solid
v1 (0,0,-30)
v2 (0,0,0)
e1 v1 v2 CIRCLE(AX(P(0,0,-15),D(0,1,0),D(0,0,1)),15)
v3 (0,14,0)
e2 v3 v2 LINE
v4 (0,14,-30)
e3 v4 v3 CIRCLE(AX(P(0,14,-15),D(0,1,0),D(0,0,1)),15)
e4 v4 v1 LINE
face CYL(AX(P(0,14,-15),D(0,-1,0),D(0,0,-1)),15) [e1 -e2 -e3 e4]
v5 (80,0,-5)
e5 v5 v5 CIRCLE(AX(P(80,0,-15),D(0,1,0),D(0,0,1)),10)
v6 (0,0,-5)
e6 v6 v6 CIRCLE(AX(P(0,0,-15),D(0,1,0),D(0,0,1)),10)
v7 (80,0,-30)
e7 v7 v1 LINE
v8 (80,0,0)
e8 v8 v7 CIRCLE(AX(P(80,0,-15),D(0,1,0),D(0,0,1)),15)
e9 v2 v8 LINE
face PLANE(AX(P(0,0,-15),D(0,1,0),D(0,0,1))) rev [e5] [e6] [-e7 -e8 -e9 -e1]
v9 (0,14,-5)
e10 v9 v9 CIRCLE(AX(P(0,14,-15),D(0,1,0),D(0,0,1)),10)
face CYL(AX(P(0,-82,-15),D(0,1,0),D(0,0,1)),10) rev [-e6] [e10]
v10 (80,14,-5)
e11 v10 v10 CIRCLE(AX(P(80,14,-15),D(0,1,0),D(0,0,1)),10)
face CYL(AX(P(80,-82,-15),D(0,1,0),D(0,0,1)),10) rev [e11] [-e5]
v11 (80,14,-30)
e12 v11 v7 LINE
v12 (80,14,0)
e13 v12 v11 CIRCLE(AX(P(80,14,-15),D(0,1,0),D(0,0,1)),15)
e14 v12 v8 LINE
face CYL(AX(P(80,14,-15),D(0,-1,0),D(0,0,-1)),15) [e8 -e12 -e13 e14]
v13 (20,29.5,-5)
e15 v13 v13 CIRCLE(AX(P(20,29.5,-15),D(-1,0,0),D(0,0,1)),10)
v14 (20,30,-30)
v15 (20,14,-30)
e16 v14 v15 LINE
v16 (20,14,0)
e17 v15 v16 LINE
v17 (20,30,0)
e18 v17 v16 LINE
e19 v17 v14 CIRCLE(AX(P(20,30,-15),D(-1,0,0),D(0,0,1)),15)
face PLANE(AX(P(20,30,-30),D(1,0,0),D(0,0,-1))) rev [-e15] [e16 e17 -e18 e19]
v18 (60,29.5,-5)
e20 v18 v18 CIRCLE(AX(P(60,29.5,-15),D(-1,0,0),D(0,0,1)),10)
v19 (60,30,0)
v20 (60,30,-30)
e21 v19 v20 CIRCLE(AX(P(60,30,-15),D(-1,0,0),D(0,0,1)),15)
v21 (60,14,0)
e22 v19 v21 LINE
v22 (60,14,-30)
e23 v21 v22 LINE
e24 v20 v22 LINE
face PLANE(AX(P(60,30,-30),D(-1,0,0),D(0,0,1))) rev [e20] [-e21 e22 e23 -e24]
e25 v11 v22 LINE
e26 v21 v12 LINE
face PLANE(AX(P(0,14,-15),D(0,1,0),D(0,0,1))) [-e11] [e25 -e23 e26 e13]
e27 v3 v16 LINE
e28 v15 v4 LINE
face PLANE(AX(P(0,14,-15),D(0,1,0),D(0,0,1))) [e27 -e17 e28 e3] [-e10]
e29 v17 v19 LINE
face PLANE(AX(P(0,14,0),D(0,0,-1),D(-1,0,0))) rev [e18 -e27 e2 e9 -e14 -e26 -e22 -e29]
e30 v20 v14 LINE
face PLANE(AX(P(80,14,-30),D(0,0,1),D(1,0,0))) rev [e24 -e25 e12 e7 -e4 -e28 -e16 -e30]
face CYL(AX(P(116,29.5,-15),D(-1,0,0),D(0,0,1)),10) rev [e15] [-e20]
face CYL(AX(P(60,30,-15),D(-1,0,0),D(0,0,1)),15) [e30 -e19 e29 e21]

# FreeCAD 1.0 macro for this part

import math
import FreeCAD as App
import Part
import Sketcher
Q = App.Units.Quantity

doc = App.newDocument("Part")
params = doc.addObject("Spreadsheet::Sheet", "Params")
for row, (alias, value) in enumerate([
    ("sketch1_radius", "15 mm"),
    ("sketch1_width", "80 mm"),
    ("pad1_length", "14 mm"),
    ("sketch2_width", "40 mm"),
    ("sketch2_height", "30 mm"),
    ("pad2_length", "16 mm"),
    ("sketch3_diameter", "30 mm"),
    ("pad3_length", "40 mm"),
    ("sketch4_diameter", "20 mm"),
    ("pocket1_length", "96 mm"),
    ("sketch5_diameter", "20 mm"),
    ("pocket2_length", "96 mm"),
    ("sketch6_diameter", "20 mm"),
    ("pocket3_length", "96 mm"),
], start=1):
    params.set(f"A{row}", alias)
    params.set(f"B{row}", "=" + value)
    params.setAlias(f"B{row}", alias)

body = doc.addObject("PartDesign::Body", "Body")

sketch1 = body.newObject("Sketcher::SketchObject", "Sketch")
sketch1.AttachmentSupport = (doc.getObject("XZ_Plane"), [""])
sketch1.MapMode = "FlatFace"
sketch1.addGeometry([
    Part.LineSegment(App.Vector(0, 0, 0), App.Vector(80, 0, 0)),
    Part.ArcOfCircle(Part.Circle(App.Vector(80, -15, 0), App.Vector(0, 0, 1), 15), math.radians(-90), math.radians(90)),
    Part.LineSegment(App.Vector(80, -30, 0), App.Vector(0, -30, 0)),
    Part.ArcOfCircle(Part.Circle(App.Vector(0, -15, 0), App.Vector(0, 0, 1), 15), math.radians(90), math.radians(270)),
], False)
sketch1.addConstraint([
    Sketcher.Constraint("Tangent", 0, 2, 1, 2),
    Sketcher.Constraint("Tangent", 1, 1, 2, 1),
    Sketcher.Constraint("Tangent", 2, 2, 3, 2),
    Sketcher.Constraint("Tangent", 3, 1, 0, 1),
    Sketcher.Constraint("Horizontal", 0),
    Sketcher.Constraint("Horizontal", 2),
    Sketcher.Constraint("Coincident", 3, 1, -1, 1),
    Sketcher.Constraint("Radius", 1, Q("15 mm")),
    Sketcher.Constraint("DistanceX", 0, 1, 0, 2, Q("80 mm")),
])
sketch1.setExpression("Constraints[7]", "Params.sketch1_radius")
sketch1.setExpression("Constraints[8]", "Params.sketch1_width")
pad1 = body.newObject("PartDesign::Pad", "Pad")
pad1.Profile = sketch1
pad1.setExpression("Length", "Params.pad1_length")
pad1.Reversed = True

sketch2 = body.newObject("Sketcher::SketchObject", "Sketch001")
sketch2.AttachmentSupport = (doc.getObject("XZ_Plane"), [""])
sketch2.MapMode = "FlatFace"
sketch2.AttachmentOffset = App.Placement(App.Vector(0, 0, -14), App.Rotation())
sketch2.addGeometry([
    Part.LineSegment(App.Vector(20, -30, 0), App.Vector(20, 0, 0)),
    Part.LineSegment(App.Vector(20, 0, 0), App.Vector(60, 0, 0)),
    Part.LineSegment(App.Vector(60, 0, 0), App.Vector(60, -30, 0)),
    Part.LineSegment(App.Vector(60, -30, 0), App.Vector(20, -30, 0)),
], False)
sketch2.addConstraint([
    Sketcher.Constraint("Coincident", 0, 2, 1, 1),
    Sketcher.Constraint("Coincident", 1, 2, 2, 1),
    Sketcher.Constraint("Coincident", 2, 2, 3, 1),
    Sketcher.Constraint("Coincident", 3, 2, 0, 1),
    Sketcher.Constraint("Vertical", 0),
    Sketcher.Constraint("Horizontal", 1),
    Sketcher.Constraint("Vertical", 2),
    Sketcher.Constraint("Horizontal", 3),
    Sketcher.Constraint("PointOnObject", 0, 2, -1),
    Sketcher.Constraint("DistanceX", 1, 1, 1, 2, Q("40 mm")),
    Sketcher.Constraint("DistanceY", 0, 1, 0, 2, Q("30 mm")),
    Sketcher.Constraint("DistanceX", -1, 1, 0, 2, Q("20 mm")),
])
sketch2.setExpression("Constraints[9]", "Params.sketch2_width")
sketch2.setExpression("Constraints[10]", "Params.sketch2_height")
pad2 = body.newObject("PartDesign::Pad", "Pad001")
pad2.Profile = sketch2
pad2.setExpression("Length", "Params.pad2_length")
pad2.Reversed = True

sketch3 = body.newObject("Sketcher::SketchObject", "Sketch002")
sketch3.AttachmentSupport = (doc.getObject("YZ_Plane"), [""])
sketch3.MapMode = "FlatFace"
sketch3.AttachmentOffset = App.Placement(App.Vector(0, 0, 20), App.Rotation())
sketch3.addGeometry(Part.Circle(App.Vector(30, -15, 0), App.Vector(0, 0, 1), 15), False)
sketch3.addConstraint([
    Sketcher.Constraint("Diameter", 0, Q("30 mm")),
    Sketcher.Constraint("DistanceX", -1, 1, 0, 3, Q("30 mm")),
    Sketcher.Constraint("DistanceY", 0, 3, -1, 1, Q("15 mm")),
])
sketch3.setExpression("Constraints[0]", "Params.sketch3_diameter")
pad3 = body.newObject("PartDesign::Pad", "Pad002")
pad3.Profile = sketch3
pad3.setExpression("Length", "Params.pad3_length")

sketch4 = body.newObject("Sketcher::SketchObject", "Sketch003")
sketch4.AttachmentSupport = (doc.getObject("YZ_Plane"), [""])
sketch4.MapMode = "FlatFace"
sketch4.AttachmentOffset = App.Placement(App.Vector(0, 0, 20), App.Rotation())
sketch4.addGeometry(Part.Circle(App.Vector(29.5, -15, 0), App.Vector(0, 0, 1), 10), False)
sketch4.addConstraint([
    Sketcher.Constraint("Diameter", 0, Q("20 mm")),
    Sketcher.Constraint("DistanceY", 0, 3, -1, 1, Q("15 mm")),
    Sketcher.Constraint("DistanceX", -1, 1, 0, 3, Q("29.5 mm")),
])
sketch4.setExpression("Constraints[0]", "Params.sketch4_diameter")
pocket1 = body.newObject("PartDesign::Pocket", "Pocket")
pocket1.Profile = sketch4
pocket1.setExpression("Length", "Params.pocket1_length")
pocket1.Reversed = True

sketch5 = body.newObject("Sketcher::SketchObject", "Sketch004")
sketch5.AttachmentSupport = (doc.getObject("XZ_Plane"), [""])
sketch5.MapMode = "FlatFace"
sketch5.AttachmentOffset = App.Placement(App.Vector(0, 0, -14), App.Rotation())
sketch5.addGeometry(Part.Circle(App.Vector(0, -15, 0), App.Vector(0, 0, 1), 10), False)
sketch5.addConstraint([
    Sketcher.Constraint("PointOnObject", 0, 3, -2),
    Sketcher.Constraint("Diameter", 0, Q("20 mm")),
    Sketcher.Constraint("DistanceY", 0, 3, -1, 1, Q("15 mm")),
])
sketch5.setExpression("Constraints[1]", "Params.sketch5_diameter")
pocket2 = body.newObject("PartDesign::Pocket", "Pocket001")
pocket2.Profile = sketch5
pocket2.setExpression("Length", "Params.pocket2_length")
pocket2.Reversed = True

sketch6 = body.newObject("Sketcher::SketchObject", "Sketch005")
sketch6.AttachmentSupport = (doc.getObject("XZ_Plane"), [""])
sketch6.MapMode = "FlatFace"
sketch6.AttachmentOffset = App.Placement(App.Vector(0, 0, -14), App.Rotation())
sketch6.addGeometry(Part.Circle(App.Vector(80, -15, 0), App.Vector(0, 0, 1), 10), False)
sketch6.addConstraint([
    Sketcher.Constraint("Diameter", 0, Q("20 mm")),
    Sketcher.Constraint("DistanceX", -1, 1, 0, 3, Q("80 mm")),
    Sketcher.Constraint("DistanceY", 0, 3, -1, 1, Q("15 mm")),
])
sketch6.setExpression("Constraints[0]", "Params.sketch6_diameter")
pocket3 = body.newObject("PartDesign::Pocket", "Pocket002")
pocket3.Profile = sketch6
pocket3.setExpression("Length", "Params.pocket3_length")
pocket3.Reversed = True

doc.recompute()
